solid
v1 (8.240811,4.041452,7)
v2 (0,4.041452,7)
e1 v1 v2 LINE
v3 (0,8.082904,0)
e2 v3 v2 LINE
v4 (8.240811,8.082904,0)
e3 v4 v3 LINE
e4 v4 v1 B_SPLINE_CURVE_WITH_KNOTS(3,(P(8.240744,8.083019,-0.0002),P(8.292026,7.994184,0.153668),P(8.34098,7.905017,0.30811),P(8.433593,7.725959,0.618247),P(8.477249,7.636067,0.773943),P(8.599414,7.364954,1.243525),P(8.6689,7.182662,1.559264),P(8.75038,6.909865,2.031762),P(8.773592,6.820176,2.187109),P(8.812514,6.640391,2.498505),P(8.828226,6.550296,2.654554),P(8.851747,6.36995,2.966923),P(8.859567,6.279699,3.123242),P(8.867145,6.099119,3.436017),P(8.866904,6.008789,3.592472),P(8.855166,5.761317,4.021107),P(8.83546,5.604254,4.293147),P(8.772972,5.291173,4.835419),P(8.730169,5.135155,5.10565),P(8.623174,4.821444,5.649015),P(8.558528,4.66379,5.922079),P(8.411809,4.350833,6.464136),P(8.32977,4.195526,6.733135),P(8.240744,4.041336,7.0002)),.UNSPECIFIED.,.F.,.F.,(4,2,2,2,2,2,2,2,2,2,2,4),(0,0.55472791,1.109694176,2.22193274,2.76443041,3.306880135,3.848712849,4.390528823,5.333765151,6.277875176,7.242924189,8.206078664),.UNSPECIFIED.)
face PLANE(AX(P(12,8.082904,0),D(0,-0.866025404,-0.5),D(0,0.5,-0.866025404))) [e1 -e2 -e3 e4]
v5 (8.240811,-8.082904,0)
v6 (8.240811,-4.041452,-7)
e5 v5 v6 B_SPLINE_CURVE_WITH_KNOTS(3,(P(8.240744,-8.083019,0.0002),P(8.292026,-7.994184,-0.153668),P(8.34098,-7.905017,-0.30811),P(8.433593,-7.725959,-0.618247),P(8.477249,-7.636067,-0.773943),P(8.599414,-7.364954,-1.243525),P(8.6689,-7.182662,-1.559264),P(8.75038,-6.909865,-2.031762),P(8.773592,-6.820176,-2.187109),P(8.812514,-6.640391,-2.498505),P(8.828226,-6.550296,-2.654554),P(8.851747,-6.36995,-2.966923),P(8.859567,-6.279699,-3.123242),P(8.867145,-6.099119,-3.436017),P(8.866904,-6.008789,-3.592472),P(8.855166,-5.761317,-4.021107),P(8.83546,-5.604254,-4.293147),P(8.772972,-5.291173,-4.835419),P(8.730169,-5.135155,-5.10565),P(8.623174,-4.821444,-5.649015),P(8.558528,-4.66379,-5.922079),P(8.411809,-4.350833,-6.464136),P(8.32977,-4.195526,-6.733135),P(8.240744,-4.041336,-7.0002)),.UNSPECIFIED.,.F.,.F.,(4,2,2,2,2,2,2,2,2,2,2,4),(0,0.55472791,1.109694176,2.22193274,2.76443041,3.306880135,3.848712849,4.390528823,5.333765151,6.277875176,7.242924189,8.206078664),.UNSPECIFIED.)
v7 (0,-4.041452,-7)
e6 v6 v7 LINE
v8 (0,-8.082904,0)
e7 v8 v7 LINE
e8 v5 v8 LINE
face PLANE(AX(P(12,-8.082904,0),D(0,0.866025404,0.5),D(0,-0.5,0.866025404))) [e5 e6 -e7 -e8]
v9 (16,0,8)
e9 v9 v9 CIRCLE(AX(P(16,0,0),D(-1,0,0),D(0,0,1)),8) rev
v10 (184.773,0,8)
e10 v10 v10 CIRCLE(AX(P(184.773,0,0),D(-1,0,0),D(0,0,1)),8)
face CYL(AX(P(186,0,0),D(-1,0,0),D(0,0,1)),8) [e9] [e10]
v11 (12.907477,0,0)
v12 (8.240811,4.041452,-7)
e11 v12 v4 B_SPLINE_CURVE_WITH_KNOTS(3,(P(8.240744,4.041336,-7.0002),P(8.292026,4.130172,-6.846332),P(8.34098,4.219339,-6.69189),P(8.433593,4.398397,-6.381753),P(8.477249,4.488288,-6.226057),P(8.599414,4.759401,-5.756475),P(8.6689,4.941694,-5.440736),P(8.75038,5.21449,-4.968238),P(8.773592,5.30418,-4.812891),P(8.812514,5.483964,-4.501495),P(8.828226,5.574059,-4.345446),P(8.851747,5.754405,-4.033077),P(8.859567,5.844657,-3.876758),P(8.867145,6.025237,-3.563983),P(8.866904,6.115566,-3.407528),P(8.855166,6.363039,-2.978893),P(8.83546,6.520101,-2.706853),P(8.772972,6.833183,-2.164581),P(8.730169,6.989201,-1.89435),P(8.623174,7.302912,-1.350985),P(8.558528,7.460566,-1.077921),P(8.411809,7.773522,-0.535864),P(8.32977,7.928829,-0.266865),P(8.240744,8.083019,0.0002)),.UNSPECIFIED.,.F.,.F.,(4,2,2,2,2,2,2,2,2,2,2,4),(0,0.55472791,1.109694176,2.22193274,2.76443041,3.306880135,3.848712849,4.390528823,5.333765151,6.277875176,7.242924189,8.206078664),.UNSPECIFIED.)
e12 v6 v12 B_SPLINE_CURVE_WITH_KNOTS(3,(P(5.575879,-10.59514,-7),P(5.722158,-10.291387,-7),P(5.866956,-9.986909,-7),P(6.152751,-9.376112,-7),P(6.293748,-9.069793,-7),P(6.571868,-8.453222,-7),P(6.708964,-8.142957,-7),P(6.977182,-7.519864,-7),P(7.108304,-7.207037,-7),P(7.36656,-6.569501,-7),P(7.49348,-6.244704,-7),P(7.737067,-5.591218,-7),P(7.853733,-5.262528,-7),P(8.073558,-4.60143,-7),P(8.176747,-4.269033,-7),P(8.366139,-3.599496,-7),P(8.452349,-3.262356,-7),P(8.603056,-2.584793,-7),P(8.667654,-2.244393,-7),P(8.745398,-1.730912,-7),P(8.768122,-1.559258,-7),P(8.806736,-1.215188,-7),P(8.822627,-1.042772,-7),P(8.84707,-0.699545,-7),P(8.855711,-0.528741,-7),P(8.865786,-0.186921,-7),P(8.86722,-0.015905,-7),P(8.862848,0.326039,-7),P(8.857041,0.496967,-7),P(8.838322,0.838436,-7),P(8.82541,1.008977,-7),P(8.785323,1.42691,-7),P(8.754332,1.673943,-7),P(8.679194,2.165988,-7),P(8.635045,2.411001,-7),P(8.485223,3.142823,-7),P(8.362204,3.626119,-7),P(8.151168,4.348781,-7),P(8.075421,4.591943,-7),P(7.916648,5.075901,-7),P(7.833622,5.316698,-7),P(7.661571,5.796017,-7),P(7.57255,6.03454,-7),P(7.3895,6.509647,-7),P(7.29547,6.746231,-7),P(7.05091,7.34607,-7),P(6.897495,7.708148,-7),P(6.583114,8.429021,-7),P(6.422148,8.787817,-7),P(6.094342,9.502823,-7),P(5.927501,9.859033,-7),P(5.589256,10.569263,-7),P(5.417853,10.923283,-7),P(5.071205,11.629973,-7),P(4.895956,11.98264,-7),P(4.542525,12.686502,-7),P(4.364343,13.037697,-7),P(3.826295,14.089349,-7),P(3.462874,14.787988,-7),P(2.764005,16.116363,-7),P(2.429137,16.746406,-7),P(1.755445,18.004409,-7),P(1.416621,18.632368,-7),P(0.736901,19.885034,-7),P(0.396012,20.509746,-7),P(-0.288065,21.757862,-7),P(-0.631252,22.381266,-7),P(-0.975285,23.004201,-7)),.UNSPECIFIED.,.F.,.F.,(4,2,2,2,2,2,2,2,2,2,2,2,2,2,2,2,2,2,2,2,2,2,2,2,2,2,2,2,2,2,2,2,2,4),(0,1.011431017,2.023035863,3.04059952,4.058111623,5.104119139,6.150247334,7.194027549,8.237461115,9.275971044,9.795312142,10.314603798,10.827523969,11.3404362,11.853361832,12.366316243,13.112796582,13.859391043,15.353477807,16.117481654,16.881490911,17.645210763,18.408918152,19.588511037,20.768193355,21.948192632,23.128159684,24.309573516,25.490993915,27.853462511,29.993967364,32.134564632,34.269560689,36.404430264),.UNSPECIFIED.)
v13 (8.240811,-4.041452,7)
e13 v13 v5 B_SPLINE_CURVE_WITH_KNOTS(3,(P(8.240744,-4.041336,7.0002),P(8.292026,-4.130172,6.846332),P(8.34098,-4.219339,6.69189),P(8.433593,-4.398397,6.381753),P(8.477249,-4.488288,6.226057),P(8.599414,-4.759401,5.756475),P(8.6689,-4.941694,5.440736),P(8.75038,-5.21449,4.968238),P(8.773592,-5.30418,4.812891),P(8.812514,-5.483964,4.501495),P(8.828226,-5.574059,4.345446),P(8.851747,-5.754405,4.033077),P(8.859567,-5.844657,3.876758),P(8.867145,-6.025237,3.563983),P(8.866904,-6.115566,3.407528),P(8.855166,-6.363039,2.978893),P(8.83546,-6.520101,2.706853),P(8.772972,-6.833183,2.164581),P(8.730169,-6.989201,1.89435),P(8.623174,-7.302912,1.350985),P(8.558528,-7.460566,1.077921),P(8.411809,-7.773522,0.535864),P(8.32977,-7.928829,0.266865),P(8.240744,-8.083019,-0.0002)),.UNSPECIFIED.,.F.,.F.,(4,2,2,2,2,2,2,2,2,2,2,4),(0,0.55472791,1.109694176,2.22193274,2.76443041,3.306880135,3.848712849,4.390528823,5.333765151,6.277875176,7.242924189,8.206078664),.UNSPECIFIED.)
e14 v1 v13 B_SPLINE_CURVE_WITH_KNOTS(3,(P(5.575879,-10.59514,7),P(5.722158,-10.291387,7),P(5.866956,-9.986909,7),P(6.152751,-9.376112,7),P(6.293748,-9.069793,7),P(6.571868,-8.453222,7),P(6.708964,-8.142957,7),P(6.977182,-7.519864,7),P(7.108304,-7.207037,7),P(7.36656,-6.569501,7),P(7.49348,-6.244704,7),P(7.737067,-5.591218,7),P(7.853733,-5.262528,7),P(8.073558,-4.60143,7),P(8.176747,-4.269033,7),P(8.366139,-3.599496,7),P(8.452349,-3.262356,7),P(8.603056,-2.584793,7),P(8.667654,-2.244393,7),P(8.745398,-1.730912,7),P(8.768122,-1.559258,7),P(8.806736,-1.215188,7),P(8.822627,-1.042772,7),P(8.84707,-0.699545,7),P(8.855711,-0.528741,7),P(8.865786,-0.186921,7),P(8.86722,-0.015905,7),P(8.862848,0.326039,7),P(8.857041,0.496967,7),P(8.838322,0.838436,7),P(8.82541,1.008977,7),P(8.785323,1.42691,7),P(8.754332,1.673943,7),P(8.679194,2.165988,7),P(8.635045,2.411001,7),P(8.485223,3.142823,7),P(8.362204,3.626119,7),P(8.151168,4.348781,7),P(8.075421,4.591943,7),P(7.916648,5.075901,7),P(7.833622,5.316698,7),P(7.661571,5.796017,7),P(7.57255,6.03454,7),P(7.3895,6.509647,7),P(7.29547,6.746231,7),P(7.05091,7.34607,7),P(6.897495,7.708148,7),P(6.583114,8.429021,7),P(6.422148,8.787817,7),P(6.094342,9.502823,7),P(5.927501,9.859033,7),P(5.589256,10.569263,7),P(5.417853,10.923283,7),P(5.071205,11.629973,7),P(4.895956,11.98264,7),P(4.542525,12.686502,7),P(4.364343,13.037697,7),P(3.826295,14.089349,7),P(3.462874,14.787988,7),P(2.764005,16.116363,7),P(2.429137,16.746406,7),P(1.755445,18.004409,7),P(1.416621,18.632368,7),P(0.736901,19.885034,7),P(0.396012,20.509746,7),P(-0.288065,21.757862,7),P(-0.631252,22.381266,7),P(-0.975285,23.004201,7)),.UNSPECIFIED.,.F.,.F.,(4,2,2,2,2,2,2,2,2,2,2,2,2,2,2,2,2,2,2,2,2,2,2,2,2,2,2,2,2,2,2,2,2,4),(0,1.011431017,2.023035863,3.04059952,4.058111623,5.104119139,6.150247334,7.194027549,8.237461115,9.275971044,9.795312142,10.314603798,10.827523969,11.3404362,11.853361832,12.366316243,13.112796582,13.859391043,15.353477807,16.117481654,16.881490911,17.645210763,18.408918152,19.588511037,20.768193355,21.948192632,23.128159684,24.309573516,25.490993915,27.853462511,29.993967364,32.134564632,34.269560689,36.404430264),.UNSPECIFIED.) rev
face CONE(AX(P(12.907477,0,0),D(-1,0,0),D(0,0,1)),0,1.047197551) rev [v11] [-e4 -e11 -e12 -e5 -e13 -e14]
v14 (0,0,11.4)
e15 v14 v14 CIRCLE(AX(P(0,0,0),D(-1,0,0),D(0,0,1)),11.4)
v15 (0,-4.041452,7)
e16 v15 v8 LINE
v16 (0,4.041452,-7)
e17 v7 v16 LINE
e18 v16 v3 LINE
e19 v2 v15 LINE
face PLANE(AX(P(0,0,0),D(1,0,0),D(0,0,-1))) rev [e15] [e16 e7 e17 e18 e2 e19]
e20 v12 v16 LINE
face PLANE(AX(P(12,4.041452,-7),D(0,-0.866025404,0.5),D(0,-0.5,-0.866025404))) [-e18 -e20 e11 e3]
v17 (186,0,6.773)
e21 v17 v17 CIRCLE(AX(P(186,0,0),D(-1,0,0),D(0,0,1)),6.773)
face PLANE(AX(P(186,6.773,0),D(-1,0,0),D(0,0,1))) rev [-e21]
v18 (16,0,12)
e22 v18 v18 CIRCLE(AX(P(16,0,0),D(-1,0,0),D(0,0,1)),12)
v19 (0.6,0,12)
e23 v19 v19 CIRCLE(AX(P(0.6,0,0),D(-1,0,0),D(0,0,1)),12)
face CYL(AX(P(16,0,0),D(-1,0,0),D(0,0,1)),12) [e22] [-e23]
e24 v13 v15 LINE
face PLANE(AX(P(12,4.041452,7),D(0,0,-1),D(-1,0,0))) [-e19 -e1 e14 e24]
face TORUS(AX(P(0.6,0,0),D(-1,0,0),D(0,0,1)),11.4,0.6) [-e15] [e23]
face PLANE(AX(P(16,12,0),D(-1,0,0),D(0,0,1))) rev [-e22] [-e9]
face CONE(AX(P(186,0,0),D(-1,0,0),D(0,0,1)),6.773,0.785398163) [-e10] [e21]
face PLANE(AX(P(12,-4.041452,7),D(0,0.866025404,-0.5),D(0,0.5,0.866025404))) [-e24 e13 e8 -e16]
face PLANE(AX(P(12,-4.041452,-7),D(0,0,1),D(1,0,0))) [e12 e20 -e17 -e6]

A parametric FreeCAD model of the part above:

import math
import FreeCAD as App
import Part
import Sketcher
from FreeCAD import Vector
Q = App.Units.Quantity

doc = App.newDocument("Part")
body = doc.addObject("PartDesign::Body", "Body")

# Sketch on XY plane
sketch1 = body.newObject("Sketcher::SketchObject", "Sketch")
sketch1.AttachmentSupport = (doc.getObject("XY_Plane"), [""])
sketch1.MapMode = "FlatFace"
sketch1.addGeometry([
    Part.LineSegment(Vector(0, 12, 0), Vector(0, 0, 0)),
    Part.LineSegment(Vector(0, 0, 0), Vector(16, 0, 0)),
    Part.LineSegment(Vector(16, 0, 0), Vector(16, 12, 0)),
    Part.LineSegment(Vector(16, 12, 0), Vector(0, 12, 0)),
], False)
sketch1.addConstraint([
    Sketcher.Constraint("Coincident", 0, 2, 1, 1),
    Sketcher.Constraint("Coincident", 1, 2, 2, 1),
    Sketcher.Constraint("Coincident", 2, 2, 3, 1),
    Sketcher.Constraint("Coincident", 3, 2, 0, 1),
    Sketcher.Constraint("Vertical", 0),
    Sketcher.Constraint("Horizontal", 1),
    Sketcher.Constraint("Vertical", 2),
    Sketcher.Constraint("Horizontal", 3),
    Sketcher.Constraint("Coincident", 0, 2, -1, 1),
    Sketcher.Constraint("DistanceX", 1, 1, 1, 2, Q("16 mm")),
    Sketcher.Constraint("DistanceY", 0, 2, 0, 1, Q("12 mm")),
])
revolution = body.newObject("PartDesign::Revolution", "Revolution")
revolution.Profile = sketch1
revolution.ReferenceAxis = (sketch1, ["H_Axis"])
revolution.Angle = 360

# Sketch on XY plane
sketch2 = body.newObject("Sketcher::SketchObject", "Sketch001")
sketch2.AttachmentSupport = (doc.getObject("XY_Plane"), [""])
sketch2.MapMode = "FlatFace"
sketch2.addGeometry([
    Part.LineSegment(Vector(0, 12, 0), Vector(0, 11.4, 0)),
    Part.ArcOfCircle(Part.Circle(Vector(0.6, 11.4, 0), Vector(0, 0, 1), 0.6), math.radians(90), math.radians(180)),
    Part.LineSegment(Vector(0.6, 12, 0), Vector(0, 12, 0)),
], False)
sketch2.addConstraint([
    Sketcher.Constraint("Tangent", 0, 2, 1, 2),
    Sketcher.Constraint("Tangent", 1, 1, 2, 1),
    Sketcher.Constraint("Coincident", 2, 2, 0, 1),
    Sketcher.Constraint("Vertical", 0),
    Sketcher.Constraint("Horizontal", 2),
    Sketcher.Constraint("PointOnObject", 0, 2, -2),
    Sketcher.Constraint("Radius", 1, Q("0.6 mm")),
    Sketcher.Constraint("DistanceY", -1, 1, 1, 1, Q("12 mm")),
])
groove = body.newObject("PartDesign::Groove", "Groove")
groove.Profile = sketch2
groove.ReferenceAxis = (sketch2, ["H_Axis"])
groove.Angle = 360

# Sketch on XY plane
sketch3 = body.newObject("Sketcher::SketchObject", "Sketch002")
sketch3.AttachmentSupport = (doc.getObject("XY_Plane"), [""])
sketch3.MapMode = "FlatFace"
sketch3.addGeometry([
    Part.LineSegment(Vector(16, 8, 0), Vector(16, 0, 0)),  # 0
    Part.LineSegment(Vector(16, 0, 0), Vector(186, 0, 0)),  # 1
    Part.LineSegment(Vector(186, 0, 0), Vector(186, 6.8, 0)),  # 2
    Part.LineSegment(Vector(186, 6.8, 0), Vector(184.8, 8, 0)),  # 3
    Part.LineSegment(Vector(184.8, 8, 0), Vector(16, 8, 0)),  # 4
], False)
sketch3.addConstraint([
    Sketcher.Constraint("Coincident", 0, 2, 1, 1),
    Sketcher.Constraint("Coincident", 1, 2, 2, 1),
    Sketcher.Constraint("Coincident", 2, 2, 3, 1),
    Sketcher.Constraint("Coincident", 3, 2, 4, 1),
    Sketcher.Constraint("Coincident", 4, 2, 0, 1),
    Sketcher.Constraint("Vertical", 0),
    Sketcher.Constraint("Horizontal", 1),
    Sketcher.Constraint("Vertical", 2),
    Sketcher.Constraint("Horizontal", 4),
    Sketcher.Constraint("PointOnObject", 0, 2, -1),
    Sketcher.Constraint("DistanceX", 1, 1, 1, 2, Q("170 mm")),
    Sketcher.Constraint("DistanceY", 0, 2, 0, 1, Q("8 mm")),
    Sketcher.Constraint("Angle", 3, Q("135 deg")),
    Sketcher.Constraint("DistanceX", -1, 1, 0, 2, Q("16 mm")),
    Sketcher.Constraint("DistanceX", 4, 2, 4, 1, Q("168.773 mm")),
])
revolution2 = body.newObject("PartDesign::Revolution", "Revolution001")
revolution2.Profile = sketch3
revolution2.ReferenceAxis = (sketch3, ["H_Axis"])
revolution2.Angle = 360

# Sketch on XY plane
sketch4 = body.newObject("Sketcher::SketchObject", "Sketch003")
sketch4.AttachmentSupport = (doc.getObject("XY_Plane"), [""])
sketch4.MapMode = "FlatFace"
sketch4.addGeometry([
    Part.LineSegment(Vector(0, 8, 0), Vector(0, 0, 0)),
    Part.LineSegment(Vector(0, 0, 0), Vector(13, 0, 0)),
    Part.LineSegment(Vector(13, 0, 0), Vector(8, 8, 0)),
    Part.LineSegment(Vector(8, 8, 0), Vector(0, 8, 0)),
], False)
sketch4.addConstraint([
    Sketcher.Constraint("Coincident", 0, 2, 1, 1),
    Sketcher.Constraint("Coincident", 1, 2, 2, 1),
    Sketcher.Constraint("Coincident", 2, 2, 3, 1),
    Sketcher.Constraint("Coincident", 3, 2, 0, 1),
    Sketcher.Constraint("Vertical", 0),
    Sketcher.Constraint("Horizontal", 1),
    Sketcher.Constraint("Horizontal", 3),
    Sketcher.Constraint("Coincident", 0, 2, -1, 1),
    Sketcher.Constraint("DistanceX", 3, 2, 3, 1, Q("8 mm")),
    Sketcher.Constraint("Angle", 2, Q("120 deg")),
    Sketcher.Constraint("DistanceY", 0, 2, 0, 1, Q("8.5 mm")),
])
groove2 = body.newObject("PartDesign::Groove", "Groove001")
groove2.Profile = sketch4
groove2.ReferenceAxis = (sketch4, ["H_Axis"])
groove2.Angle = 360

# Sketch on YZ plane
sketch5 = body.newObject("Sketcher::SketchObject", "Sketch004")
sketch5.AttachmentSupport = (doc.getObject("YZ_Plane"), [""])
sketch5.MapMode = "FlatFace"
sketch5.addGeometry([
    Part.Circle(Vector(0, 0, 0), Vector(0, 0, 1), 9),  # 0
    Part.LineSegment(Vector(-4, 7, 0), Vector(4, 7, 0)),  # 1
    Part.LineSegment(Vector(4, 7, 0), Vector(8, 0, 0)),  # 2
    Part.LineSegment(Vector(8, 0, 0), Vector(4, -7, 0)),  # 3
    Part.LineSegment(Vector(4, -7, 0), Vector(-4, -7, 0)),  # 4
    Part.LineSegment(Vector(-4, -7, 0), Vector(-8, 0, 0)),  # 5
    Part.LineSegment(Vector(-8, 0, 0), Vector(-4, 7, 0)),  # 6
], False)
sketch5.addConstraint([
    Sketcher.Constraint("Coincident", 1, 2, 2, 1),
    Sketcher.Constraint("Coincident", 2, 2, 3, 1),
    Sketcher.Constraint("Coincident", 3, 2, 4, 1),
    Sketcher.Constraint("Coincident", 4, 2, 5, 1),
    Sketcher.Constraint("Coincident", 5, 2, 6, 1),
    Sketcher.Constraint("Coincident", 6, 2, 1, 1),
    Sketcher.Constraint("Horizontal", 1),
    Sketcher.Constraint("Horizontal", 4),
    Sketcher.Constraint("Coincident", 0, 3, -1, 1),
    Sketcher.Constraint("Symmetric", 1, 2, 4, 2, -1, 1),
    Sketcher.Constraint("Symmetric", 2, 2, 5, 2, -1, 1),
    Sketcher.Constraint("PointOnObject", 2, 2, -1),
    Sketcher.Constraint("Parallel", 3, 6),
    Sketcher.Constraint("Vertical", 1, 2, 3, 2),
    Sketcher.Constraint("Diameter", 0, Q("18 mm")),
    Sketcher.Constraint("Angle", 2, Q("-60 deg")),
    Sketcher.Constraint("DistanceY", -1, 1, 1, 2, Q("7 mm")),
    Sketcher.Constraint("DistanceX", 1, 1, 1, 2, Q("8.082904 mm")),
])
pad1 = body.newObject("PartDesign::Pad", "Pad")
pad1.Profile = sketch5
pad1.Length = 12

doc.recompute()
